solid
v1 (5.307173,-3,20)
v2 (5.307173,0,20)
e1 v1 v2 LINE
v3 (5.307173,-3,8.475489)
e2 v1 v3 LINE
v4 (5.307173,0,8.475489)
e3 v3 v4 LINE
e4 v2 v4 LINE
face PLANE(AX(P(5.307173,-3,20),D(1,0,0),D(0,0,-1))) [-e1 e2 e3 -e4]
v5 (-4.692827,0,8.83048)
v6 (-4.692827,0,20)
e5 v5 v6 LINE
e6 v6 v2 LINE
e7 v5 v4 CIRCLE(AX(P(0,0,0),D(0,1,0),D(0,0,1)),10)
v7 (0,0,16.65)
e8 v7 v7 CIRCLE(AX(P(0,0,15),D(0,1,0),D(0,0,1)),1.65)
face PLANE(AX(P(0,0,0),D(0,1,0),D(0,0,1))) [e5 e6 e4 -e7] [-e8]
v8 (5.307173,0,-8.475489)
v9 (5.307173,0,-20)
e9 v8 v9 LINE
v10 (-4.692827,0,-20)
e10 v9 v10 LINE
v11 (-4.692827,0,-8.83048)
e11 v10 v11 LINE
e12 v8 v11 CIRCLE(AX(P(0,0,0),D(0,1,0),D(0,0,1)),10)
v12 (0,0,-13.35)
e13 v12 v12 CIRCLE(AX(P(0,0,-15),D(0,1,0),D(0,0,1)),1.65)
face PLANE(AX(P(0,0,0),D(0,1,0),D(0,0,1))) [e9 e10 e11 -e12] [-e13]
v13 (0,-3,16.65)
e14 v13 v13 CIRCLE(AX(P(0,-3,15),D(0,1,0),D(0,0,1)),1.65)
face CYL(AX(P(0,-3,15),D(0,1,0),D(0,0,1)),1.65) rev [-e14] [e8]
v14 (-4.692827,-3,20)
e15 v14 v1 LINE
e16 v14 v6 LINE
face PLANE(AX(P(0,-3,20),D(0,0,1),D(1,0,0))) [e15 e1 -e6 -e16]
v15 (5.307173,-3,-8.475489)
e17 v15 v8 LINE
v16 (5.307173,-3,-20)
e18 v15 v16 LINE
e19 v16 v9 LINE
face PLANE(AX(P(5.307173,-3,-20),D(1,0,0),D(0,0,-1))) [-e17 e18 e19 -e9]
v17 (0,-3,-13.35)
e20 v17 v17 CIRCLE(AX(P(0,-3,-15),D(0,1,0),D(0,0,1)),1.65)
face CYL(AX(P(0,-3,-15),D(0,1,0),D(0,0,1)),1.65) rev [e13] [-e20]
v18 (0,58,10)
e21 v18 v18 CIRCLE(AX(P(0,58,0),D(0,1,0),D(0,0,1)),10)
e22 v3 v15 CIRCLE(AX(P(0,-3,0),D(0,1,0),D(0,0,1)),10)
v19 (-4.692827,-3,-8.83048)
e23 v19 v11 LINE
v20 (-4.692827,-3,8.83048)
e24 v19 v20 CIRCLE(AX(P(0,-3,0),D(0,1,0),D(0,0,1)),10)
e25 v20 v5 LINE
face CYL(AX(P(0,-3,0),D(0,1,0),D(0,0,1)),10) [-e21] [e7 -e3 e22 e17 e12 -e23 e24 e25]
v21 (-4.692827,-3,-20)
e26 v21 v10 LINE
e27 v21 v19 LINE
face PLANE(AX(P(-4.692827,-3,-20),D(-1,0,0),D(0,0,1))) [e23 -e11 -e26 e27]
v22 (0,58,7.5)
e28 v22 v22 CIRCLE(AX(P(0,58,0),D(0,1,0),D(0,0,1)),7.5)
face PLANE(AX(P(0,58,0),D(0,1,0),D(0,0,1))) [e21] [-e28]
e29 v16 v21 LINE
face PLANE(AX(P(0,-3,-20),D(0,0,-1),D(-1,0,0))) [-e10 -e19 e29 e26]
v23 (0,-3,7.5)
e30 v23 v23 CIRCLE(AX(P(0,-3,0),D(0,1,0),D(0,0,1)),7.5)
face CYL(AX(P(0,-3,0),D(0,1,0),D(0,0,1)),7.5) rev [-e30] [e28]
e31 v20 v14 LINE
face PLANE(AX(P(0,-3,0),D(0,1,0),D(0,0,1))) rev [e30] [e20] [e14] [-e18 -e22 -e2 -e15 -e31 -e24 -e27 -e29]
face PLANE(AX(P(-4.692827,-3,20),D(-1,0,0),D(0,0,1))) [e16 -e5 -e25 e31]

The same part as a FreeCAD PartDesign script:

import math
import FreeCAD as App
import Part
import Sketcher

doc = App.newDocument("Part")
params = doc.addObject("Spreadsheet::Sheet", "Params")
for row, (alias, value) in enumerate([
    ("sketch1_diameter", "15 mm"),
    ("sketch1_radius", "10 mm"),
    ("sketch1_diameter2", "3.3 mm"),
    ("sketch1_width", "10 mm"),
    ("pad1_length", "3 mm"),
    ("sketch2_diameter", "20 mm"),
    ("sketch2_diameter2", "15 mm"),
    ("pad2_length", "58 mm"),
], start=1):
    params.set(f"A{row}", alias)
    params.set(f"B{row}", "=" + value)
    params.setAlias(f"B{row}", alias)

body = doc.addObject("PartDesign::Body", "Body")

# Sketch on XZ plane
sketch1 = body.newObject("Sketcher::SketchObject", "Sketch")
sketch1.AttachmentSupport = (doc.getObject("XZ_Plane"), [""])
sketch1.MapMode = "FlatFace"
sketch1.addGeometry(Part.LineSegment(App.Vector(5.3, -8.5, 0), App.Vector(5.3, -20, 0)), False)
sketch1.addGeometry(Part.LineSegment(App.Vector(5.3, -20, 0), App.Vector(-4.7, -20, 0)), False)
sketch1.addGeometry(Part.LineSegment(App.Vector(-4.7, -20, 0), App.Vector(-4.7, -8.8, 0)), False)
sketch1.addGeometry(Part.ArcOfCircle(Part.Circle(App.Vector(0, 0, 0), App.Vector(0, 0, 1), 10), math.radians(118), math.radians(242)), False)
sketch1.addGeometry(Part.LineSegment(App.Vector(-4.7, 8.8, 0), App.Vector(-4.7, 20, 0)), False)
sketch1.addGeometry(Part.LineSegment(App.Vector(-4.7, 20, 0), App.Vector(5.3, 20, 0)), False)
sketch1.addGeometry(Part.LineSegment(App.Vector(5.3, 20, 0), App.Vector(5.3, 8.5, 0)), False)
sketch1.addGeometry(Part.ArcOfCircle(Part.Circle(App.Vector(0, 0, 0), App.Vector(0, 0, 1), 10), math.radians(-58), math.radians(58)), False)
sketch1.addGeometry(Part.Circle(App.Vector(0, 15, 0), App.Vector(0, 0, 1), 1.6), False)
sketch1.addGeometry(Part.Circle(App.Vector(0, 0, 0), App.Vector(0, 0, 1), 7.5), False)
sketch1.addGeometry(Part.Circle(App.Vector(0, -15, 0), App.Vector(0, 0, 1), 1.6), False)
sketch1.addConstraint(Sketcher.Constraint("Coincident", 0, 2, 1, 1))
sketch1.addConstraint(Sketcher.Constraint("Coincident", 1, 2, 2, 1))
sketch1.addConstraint(Sketcher.Constraint("Coincident", 2, 2, 3, 2))
sketch1.addConstraint(Sketcher.Constraint("Coincident", 3, 1, 4, 1))
sketch1.addConstraint(Sketcher.Constraint("Coincident", 4, 2, 5, 1))
sketch1.addConstraint(Sketcher.Constraint("Coincident", 5, 2, 6, 1))
sketch1.addConstraint(Sketcher.Constraint("Coincident", 6, 2, 7, 2))
sketch1.addConstraint(Sketcher.Constraint("Coincident", 7, 1, 0, 1))
sketch1.addConstraint(Sketcher.Constraint("Vertical", 0))
sketch1.addConstraint(Sketcher.Constraint("Horizontal", 1))
sketch1.addConstraint(Sketcher.Constraint("Vertical", 2))
sketch1.addConstraint(Sketcher.Constraint("Vertical", 4))
sketch1.addConstraint(Sketcher.Constraint("Horizontal", 5))
sketch1.addConstraint(Sketcher.Constraint("Vertical", 6))
sketch1.addConstraint(Sketcher.Constraint("Coincident", 3, 3, -1, 1))
sketch1.addConstraint(Sketcher.Constraint("Coincident", 7, 3, -1, 1))
sketch1.addConstraint(Sketcher.Constraint("Coincident", 9, 3, -1, 1))
sketch1.addConstraint(Sketcher.Constraint("Equal", 3, 7))
sketch1.addConstraint(Sketcher.Constraint("Equal", 8, 10))
sketch1.addConstraint(Sketcher.Constraint("Symmetric", 8, 3, 10, 3, -1, 1))
sketch1.addConstraint(Sketcher.Constraint("Symmetric", 1, 2, 4, 2, -1))
sketch1.addConstraint(Sketcher.Constraint("PointOnObject", 8, 3, -2))
sketch1.addConstraint(Sketcher.Constraint("Vertical", 0, 2, 5, 2))
sketch1.addConstraint(Sketcher.Constraint("Diameter", 9, 15.0))
sketch1.addConstraint(Sketcher.Constraint("Radius", 3, 10.0))
sketch1.addConstraint(Sketcher.Constraint("Diameter", 8, 3.3))
sketch1.addConstraint(Sketcher.Constraint("DistanceX", 1, 2, 1, 1, 10.0))
sketch1.addConstraint(Sketcher.Constraint("DistanceY", -1, 1, 8, 3, 15.0))
sketch1.addConstraint(Sketcher.Constraint("DistanceY", 0, 2, -1, 1, 20.0))
sketch1.addConstraint(Sketcher.Constraint("DistanceY", 0, 2, 0, 1, 11.524511))
sketch1.setExpression("Constraints[23]", "Params.sketch1_diameter")
sketch1.setExpression("Constraints[24]", "Params.sketch1_radius")
sketch1.setExpression("Constraints[25]", "Params.sketch1_diameter2")
sketch1.setExpression("Constraints[26]", "Params.sketch1_width")
pad1 = body.newObject("PartDesign::Pad", "Pad")
pad1.Profile = sketch1
pad1.setExpression("Length", "Params.pad1_length")

# Sketch on XZ plane
sketch2 = body.newObject("Sketcher::SketchObject", "Sketch001")
sketch2.AttachmentSupport = (doc.getObject("XZ_Plane"), [""])
sketch2.MapMode = "FlatFace"
sketch2.AttachmentOffset = App.Placement(App.Vector(0, 0, -58), App.Rotation())
sketch2.addGeometry(Part.Circle(App.Vector(0, 0, 0), App.Vector(0, 0, 1), 10), False)
sketch2.addGeometry(Part.Circle(App.Vector(0, 0, 0), App.Vector(0, 0, 1), 8), False)
sketch2.addConstraint(Sketcher.Constraint("Coincident", 0, 3, -1, 1))
sketch2.addConstraint(Sketcher.Constraint("Coincident", 1, 3, -1, 1))
sketch2.addConstraint(Sketcher.Constraint("Diameter", 0, 20.0))
sketch2.addConstraint(Sketcher.Constraint("Diameter", 1, 15.0))
sketch2.setExpression("Constraints[2]", "Params.sketch2_diameter")
sketch2.setExpression("Constraints[3]", "Params.sketch2_diameter2")
pad2 = body.newObject("PartDesign::Pad", "Pad001")
pad2.Profile = sketch2
pad2.setExpression("Length", "Params.pad2_length")

doc.recompute()
